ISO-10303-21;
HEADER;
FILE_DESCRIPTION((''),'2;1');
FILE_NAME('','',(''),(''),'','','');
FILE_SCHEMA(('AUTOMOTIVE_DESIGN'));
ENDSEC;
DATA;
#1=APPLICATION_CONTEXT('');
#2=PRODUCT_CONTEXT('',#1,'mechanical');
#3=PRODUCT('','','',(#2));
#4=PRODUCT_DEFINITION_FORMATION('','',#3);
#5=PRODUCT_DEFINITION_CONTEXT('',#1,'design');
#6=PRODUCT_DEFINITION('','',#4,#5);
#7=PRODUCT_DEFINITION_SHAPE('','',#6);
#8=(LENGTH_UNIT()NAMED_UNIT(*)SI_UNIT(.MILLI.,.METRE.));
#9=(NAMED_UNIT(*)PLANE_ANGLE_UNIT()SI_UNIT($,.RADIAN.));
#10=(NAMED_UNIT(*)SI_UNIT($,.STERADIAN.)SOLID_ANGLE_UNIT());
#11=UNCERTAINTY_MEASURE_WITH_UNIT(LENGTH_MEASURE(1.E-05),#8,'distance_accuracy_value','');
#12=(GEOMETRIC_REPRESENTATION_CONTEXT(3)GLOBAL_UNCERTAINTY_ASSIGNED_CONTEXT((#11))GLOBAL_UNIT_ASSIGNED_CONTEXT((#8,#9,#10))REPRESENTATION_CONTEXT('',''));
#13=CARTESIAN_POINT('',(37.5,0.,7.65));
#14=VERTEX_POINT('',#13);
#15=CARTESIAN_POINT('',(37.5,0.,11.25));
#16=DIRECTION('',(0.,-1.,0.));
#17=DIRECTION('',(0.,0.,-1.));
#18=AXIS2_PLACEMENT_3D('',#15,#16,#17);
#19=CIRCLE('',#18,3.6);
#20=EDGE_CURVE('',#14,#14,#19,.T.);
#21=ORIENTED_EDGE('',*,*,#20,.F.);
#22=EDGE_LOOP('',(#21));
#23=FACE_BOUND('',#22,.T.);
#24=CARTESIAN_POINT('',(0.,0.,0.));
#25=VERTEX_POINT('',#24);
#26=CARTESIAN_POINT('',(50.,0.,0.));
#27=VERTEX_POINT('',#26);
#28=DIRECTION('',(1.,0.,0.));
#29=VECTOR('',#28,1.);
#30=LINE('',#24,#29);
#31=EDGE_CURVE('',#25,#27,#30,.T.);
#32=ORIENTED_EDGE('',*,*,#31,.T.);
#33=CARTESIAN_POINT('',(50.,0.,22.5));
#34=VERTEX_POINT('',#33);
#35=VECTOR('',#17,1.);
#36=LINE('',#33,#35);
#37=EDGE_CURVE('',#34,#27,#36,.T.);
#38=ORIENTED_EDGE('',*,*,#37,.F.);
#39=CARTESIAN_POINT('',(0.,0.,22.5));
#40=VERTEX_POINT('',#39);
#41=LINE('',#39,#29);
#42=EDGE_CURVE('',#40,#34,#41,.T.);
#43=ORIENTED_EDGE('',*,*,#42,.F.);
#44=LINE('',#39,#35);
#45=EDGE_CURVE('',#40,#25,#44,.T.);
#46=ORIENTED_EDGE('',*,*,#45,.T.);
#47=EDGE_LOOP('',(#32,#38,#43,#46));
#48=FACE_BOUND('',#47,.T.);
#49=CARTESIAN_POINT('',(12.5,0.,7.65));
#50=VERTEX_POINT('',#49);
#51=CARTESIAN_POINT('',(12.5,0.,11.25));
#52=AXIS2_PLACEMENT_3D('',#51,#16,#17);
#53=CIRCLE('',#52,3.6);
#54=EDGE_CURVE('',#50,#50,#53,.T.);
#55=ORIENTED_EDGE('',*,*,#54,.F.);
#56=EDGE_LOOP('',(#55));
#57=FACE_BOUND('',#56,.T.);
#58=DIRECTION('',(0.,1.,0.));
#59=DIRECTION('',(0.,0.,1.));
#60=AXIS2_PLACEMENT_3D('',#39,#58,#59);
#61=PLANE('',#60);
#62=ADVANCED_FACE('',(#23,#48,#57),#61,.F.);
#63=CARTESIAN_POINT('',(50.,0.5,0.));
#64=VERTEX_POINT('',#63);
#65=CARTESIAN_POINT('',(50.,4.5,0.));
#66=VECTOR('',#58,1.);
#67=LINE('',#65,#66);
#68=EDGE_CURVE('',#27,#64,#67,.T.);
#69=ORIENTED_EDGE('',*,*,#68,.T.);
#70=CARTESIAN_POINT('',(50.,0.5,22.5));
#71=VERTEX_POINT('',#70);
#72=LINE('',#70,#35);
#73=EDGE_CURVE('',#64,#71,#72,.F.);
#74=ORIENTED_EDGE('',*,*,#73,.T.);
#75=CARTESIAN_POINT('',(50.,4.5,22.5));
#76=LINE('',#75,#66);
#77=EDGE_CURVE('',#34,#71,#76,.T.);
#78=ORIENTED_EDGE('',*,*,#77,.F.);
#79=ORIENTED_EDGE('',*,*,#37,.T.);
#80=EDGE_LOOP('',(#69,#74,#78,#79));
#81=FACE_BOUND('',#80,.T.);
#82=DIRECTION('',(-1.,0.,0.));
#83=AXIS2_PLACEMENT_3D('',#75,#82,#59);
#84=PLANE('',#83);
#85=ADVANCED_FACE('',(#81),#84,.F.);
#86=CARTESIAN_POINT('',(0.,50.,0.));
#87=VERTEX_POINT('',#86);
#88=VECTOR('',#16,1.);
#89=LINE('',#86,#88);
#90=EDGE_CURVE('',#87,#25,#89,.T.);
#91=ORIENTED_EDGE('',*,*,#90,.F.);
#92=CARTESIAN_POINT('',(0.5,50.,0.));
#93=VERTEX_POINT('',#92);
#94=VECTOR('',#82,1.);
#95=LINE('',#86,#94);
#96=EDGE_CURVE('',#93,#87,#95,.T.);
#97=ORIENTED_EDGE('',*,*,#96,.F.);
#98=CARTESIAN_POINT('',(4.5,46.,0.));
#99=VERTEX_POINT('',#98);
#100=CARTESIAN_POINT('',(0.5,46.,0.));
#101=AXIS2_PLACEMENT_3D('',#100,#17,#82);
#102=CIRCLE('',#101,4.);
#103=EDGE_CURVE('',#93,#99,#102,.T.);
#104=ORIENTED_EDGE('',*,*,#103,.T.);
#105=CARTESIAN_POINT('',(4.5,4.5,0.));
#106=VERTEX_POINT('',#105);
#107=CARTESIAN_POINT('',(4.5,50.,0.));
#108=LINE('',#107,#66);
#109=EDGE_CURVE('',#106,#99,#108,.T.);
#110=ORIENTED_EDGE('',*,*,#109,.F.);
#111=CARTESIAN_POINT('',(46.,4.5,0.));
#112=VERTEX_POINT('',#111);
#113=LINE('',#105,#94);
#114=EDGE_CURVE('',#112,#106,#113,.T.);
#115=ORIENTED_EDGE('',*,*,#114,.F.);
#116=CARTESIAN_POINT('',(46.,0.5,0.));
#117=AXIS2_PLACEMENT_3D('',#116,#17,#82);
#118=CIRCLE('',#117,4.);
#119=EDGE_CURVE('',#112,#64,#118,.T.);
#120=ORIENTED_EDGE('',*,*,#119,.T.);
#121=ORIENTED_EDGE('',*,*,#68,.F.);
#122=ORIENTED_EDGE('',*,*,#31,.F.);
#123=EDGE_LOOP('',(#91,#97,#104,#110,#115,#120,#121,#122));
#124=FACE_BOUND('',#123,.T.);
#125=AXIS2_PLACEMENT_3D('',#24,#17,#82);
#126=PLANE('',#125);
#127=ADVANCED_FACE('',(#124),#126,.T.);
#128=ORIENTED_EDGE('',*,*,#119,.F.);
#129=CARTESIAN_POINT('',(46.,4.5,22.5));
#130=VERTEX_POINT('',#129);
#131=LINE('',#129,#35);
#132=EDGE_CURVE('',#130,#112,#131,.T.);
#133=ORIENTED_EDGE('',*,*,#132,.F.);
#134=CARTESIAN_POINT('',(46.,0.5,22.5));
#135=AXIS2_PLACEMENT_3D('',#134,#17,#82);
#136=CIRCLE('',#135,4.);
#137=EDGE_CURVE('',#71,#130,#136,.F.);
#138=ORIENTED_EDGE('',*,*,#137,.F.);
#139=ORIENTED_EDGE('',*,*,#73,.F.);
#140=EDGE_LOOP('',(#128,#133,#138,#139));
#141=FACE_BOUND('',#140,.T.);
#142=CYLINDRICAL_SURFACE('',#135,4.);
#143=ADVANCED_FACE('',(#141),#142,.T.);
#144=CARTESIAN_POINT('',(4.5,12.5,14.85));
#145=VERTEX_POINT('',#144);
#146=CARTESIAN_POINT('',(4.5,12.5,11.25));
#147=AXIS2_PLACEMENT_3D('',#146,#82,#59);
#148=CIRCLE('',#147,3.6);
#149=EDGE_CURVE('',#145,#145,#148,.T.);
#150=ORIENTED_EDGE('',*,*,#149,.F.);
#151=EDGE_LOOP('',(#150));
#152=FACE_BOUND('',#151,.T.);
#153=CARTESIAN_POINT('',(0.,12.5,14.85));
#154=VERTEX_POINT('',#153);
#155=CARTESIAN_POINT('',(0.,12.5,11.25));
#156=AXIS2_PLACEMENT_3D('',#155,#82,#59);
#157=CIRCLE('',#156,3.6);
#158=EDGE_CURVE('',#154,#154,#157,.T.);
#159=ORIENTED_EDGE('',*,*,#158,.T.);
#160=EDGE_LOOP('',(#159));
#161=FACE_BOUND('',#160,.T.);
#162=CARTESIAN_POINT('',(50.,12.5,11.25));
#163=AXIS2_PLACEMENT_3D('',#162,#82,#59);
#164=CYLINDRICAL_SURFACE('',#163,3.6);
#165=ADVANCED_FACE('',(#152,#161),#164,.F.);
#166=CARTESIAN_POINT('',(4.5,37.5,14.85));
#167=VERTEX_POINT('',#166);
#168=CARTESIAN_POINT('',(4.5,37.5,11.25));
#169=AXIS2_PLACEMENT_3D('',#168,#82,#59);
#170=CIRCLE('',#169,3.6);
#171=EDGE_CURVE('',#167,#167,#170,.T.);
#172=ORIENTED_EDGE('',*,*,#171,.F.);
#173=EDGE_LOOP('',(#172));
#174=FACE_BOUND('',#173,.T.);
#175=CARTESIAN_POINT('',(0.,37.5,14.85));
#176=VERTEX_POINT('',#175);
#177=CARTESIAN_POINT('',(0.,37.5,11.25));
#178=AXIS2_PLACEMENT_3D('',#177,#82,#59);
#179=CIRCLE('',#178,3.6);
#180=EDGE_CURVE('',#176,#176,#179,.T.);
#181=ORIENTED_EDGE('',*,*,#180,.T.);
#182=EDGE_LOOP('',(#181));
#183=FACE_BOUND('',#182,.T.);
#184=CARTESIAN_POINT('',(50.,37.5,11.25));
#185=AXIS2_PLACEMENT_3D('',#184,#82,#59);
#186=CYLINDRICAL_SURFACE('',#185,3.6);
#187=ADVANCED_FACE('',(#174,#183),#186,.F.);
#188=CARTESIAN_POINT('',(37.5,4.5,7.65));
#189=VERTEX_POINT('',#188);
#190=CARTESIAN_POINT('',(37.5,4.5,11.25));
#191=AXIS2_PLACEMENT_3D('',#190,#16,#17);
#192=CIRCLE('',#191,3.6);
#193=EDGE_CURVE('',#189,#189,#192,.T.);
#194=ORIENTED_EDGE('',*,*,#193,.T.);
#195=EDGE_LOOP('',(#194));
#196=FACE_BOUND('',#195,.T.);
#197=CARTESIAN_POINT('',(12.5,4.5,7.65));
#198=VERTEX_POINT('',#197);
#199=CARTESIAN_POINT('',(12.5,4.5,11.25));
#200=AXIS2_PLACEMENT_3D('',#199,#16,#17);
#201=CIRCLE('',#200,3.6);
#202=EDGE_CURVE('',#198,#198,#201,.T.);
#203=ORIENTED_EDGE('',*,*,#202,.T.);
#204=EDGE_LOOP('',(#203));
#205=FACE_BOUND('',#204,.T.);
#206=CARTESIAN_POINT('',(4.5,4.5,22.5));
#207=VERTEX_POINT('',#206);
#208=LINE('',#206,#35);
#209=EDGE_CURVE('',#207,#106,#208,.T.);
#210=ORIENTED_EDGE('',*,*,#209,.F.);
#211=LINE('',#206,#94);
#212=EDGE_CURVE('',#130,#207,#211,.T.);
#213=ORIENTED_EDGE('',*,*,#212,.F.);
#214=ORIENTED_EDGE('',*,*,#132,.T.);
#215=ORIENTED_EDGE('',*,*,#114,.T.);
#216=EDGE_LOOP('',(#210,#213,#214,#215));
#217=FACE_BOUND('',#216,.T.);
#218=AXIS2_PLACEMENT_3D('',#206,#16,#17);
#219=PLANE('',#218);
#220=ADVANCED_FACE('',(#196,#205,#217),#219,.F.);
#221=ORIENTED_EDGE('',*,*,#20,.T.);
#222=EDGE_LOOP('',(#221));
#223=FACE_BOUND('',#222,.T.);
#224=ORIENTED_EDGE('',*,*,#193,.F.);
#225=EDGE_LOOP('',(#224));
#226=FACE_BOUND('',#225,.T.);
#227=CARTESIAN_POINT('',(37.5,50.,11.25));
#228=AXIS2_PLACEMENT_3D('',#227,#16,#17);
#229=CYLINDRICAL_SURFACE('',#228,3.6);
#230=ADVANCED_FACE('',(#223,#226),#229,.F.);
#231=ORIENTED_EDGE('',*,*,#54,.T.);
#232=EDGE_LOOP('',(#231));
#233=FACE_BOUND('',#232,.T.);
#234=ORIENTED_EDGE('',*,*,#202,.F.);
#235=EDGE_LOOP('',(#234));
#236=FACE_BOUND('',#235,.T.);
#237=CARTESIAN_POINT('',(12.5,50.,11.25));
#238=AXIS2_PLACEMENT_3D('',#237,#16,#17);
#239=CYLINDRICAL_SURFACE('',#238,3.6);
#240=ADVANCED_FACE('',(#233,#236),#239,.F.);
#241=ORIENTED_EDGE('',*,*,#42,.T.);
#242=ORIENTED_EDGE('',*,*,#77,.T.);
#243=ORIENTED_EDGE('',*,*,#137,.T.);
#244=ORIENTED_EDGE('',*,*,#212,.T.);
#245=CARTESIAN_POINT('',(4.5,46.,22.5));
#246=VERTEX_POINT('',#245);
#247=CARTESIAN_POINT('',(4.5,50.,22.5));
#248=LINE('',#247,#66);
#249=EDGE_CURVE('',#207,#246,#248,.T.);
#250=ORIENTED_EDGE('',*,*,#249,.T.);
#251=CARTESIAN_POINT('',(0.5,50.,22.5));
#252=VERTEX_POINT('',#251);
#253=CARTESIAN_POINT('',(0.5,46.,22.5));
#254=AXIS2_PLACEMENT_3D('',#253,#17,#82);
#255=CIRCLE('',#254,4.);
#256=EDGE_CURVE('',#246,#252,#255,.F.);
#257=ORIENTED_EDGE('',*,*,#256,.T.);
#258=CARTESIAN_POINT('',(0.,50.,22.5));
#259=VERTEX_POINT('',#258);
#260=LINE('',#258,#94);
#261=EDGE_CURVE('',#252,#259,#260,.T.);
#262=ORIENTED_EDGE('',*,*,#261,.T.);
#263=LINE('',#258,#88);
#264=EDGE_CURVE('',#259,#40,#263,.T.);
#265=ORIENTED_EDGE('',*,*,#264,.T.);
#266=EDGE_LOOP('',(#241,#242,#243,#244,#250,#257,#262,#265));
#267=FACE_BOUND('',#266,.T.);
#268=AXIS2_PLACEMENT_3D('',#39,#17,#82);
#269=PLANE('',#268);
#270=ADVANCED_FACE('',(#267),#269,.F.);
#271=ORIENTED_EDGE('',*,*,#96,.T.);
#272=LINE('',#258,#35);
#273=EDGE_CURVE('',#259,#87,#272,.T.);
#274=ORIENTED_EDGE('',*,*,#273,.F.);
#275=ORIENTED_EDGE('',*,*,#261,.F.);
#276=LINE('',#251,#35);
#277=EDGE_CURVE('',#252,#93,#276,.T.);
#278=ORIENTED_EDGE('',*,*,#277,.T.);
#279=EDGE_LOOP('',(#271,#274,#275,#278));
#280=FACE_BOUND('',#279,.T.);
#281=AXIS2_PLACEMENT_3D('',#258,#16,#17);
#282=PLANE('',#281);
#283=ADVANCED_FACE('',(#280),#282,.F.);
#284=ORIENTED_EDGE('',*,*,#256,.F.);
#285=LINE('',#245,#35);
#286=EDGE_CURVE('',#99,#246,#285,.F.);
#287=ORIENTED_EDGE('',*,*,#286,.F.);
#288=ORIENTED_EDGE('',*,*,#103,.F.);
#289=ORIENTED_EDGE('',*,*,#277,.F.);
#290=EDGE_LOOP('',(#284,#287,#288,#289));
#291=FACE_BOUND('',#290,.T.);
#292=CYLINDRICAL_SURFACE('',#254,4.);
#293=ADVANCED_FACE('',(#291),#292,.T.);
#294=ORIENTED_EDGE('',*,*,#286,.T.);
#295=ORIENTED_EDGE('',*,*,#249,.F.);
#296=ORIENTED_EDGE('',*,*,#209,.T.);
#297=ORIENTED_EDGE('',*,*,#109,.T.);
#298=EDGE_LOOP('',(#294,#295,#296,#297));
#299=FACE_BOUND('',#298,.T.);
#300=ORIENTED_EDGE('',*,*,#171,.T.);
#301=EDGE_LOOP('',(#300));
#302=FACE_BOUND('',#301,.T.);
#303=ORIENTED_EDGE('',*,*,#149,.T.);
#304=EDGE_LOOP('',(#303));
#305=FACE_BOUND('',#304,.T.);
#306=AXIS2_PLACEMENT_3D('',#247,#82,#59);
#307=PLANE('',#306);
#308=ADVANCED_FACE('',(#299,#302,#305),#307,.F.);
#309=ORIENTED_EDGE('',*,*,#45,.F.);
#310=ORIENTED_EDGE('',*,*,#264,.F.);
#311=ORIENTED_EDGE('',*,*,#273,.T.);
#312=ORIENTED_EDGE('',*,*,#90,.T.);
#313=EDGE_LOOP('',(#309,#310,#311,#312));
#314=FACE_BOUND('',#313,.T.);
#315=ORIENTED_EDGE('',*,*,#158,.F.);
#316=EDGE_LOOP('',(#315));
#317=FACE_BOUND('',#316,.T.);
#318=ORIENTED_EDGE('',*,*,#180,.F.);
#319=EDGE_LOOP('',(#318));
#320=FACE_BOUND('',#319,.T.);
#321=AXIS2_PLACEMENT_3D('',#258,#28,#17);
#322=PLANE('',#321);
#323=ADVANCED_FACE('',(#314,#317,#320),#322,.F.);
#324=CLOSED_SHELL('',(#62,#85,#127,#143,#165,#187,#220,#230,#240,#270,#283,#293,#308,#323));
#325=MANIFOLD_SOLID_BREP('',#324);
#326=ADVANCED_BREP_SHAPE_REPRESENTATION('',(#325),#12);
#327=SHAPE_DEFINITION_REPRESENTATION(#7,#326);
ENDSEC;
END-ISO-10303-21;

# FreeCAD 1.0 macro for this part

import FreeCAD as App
import Part
import Sketcher


def edges_at(feature, points):
    """Names of the edges that pass closest to the given points."""
    edges = feature.Shape.Edges
    near = lambda p: min(range(len(edges)), key=lambda i: edges[i].distToShape(Part.Vertex(*p))[0])
    return sorted({f"Edge{near(p) + 1}" for p in points})


def add_polygon(sketch, points):
    """Adds a closed chain of lines whose ends are joined by coincident constraints."""
    first, n = sketch.GeometryCount, len(points)
    for a, b in zip(points, points[1:] + points[:1]):
        sketch.addGeometry(Part.LineSegment(App.Vector(*a, 0), App.Vector(*b, 0)), False)
    for i in range(n):
        sketch.addConstraint(Sketcher.Constraint("Coincident", first + i, 2, first + (i + 1) % n, 1))

doc = App.newDocument("Part")
body = doc.addObject("PartDesign::Body", "Body")

# Sketch on XY plane
sketch1 = body.newObject("Sketcher::SketchObject", "Sketch")
sketch1.AttachmentSupport = (doc.getObject("XY_Plane"), [""])
sketch1.MapMode = "FlatFace"
add_polygon(sketch1, [(0, 50), (0, 0), (50, 0), (50, 4.5), (4.5, 4.5), (4.5, 50)])  # lines 0-5
sketch1.addConstraint([
    Sketcher.Constraint("Vertical", 0),
    Sketcher.Constraint("Horizontal", 1),
    Sketcher.Constraint("Vertical", 2),
    Sketcher.Constraint("Horizontal", 3),
    Sketcher.Constraint("Vertical", 4),
    Sketcher.Constraint("Horizontal", 5),
    Sketcher.Constraint("Coincident", 0, 2, -1, 1),
    Sketcher.Constraint("Equal", 1, 0),
    Sketcher.Constraint("Equal", 5, 2),
    Sketcher.Constraint("DistanceX", 1, 1, 1, 2, 50.0),
    Sketcher.Constraint("DistanceX", 3, 2, 3, 1, 45.5),
])
pad1 = body.newObject("PartDesign::Pad", "Pad")
pad1.Profile = sketch1
pad1.Length = 22.5

# Sketch on YZ plane
sketch2 = body.newObject("Sketcher::SketchObject", "Sketch001")
sketch2.AttachmentSupport = (doc.getObject("YZ_Plane"), [""])
sketch2.MapMode = "FlatFace"
sketch2.addGeometry([
    Part.Circle(App.Vector(37.5, 11.2, 0), App.Vector(0, 0, 1), 3.6),
    Part.Circle(App.Vector(12.5, 11.2, 0), App.Vector(0, 0, 1), 3.6),
], False)
sketch2.addConstraint([
    Sketcher.Constraint("Equal", 0, 1),
    Sketcher.Constraint("Horizontal", 0, 3, 1, 3),
    Sketcher.Constraint("Diameter", 0, 7.2),
    Sketcher.Constraint("DistanceX", 1, 3, 0, 3, 25.0),
    Sketcher.Constraint("DistanceX", -1, 1, 0, 3, 37.5),
    Sketcher.Constraint("DistanceY", -1, 1, 0, 3, 11.25),
])
pocket1 = body.newObject("PartDesign::Pocket", "Pocket")
pocket1.Profile = sketch2
pocket1.Type = "ThroughAll"
pocket1.Reversed = True

# Sketch on XZ plane
sketch3 = body.newObject("Sketcher::SketchObject", "Sketch002")
sketch3.AttachmentSupport = (doc.getObject("XZ_Plane"), [""])
sketch3.MapMode = "FlatFace"
sketch3.addGeometry([
    Part.Circle(App.Vector(37.5, 11.2, 0), App.Vector(0, 0, 1), 3.6),
    Part.Circle(App.Vector(12.5, 11.2, 0), App.Vector(0, 0, 1), 3.6),
], False)
sketch3.addConstraint([
    Sketcher.Constraint("Equal", 0, 1),
    Sketcher.Constraint("Horizontal", 0, 3, 1, 3),
    Sketcher.Constraint("Diameter", 0, 7.2),
    Sketcher.Constraint("DistanceX", 1, 3, 0, 3, 25.0),
    Sketcher.Constraint("DistanceX", -1, 1, 0, 3, 37.5),
    Sketcher.Constraint("DistanceY", -1, 1, 0, 3, 11.25),
])
pocket2 = body.newObject("PartDesign::Pocket", "Pocket001")
pocket2.Profile = sketch3
pocket2.Type = "ThroughAll"
doc.recompute()

fillet = body.newObject("PartDesign::Fillet", "Fillet")
fillet.Base = (pocket2, edges_at(pocket2, [(4.5, 50, 11.25), (50, 4.5, 11.25)]))
fillet.Radius = 4

doc.recompute()
